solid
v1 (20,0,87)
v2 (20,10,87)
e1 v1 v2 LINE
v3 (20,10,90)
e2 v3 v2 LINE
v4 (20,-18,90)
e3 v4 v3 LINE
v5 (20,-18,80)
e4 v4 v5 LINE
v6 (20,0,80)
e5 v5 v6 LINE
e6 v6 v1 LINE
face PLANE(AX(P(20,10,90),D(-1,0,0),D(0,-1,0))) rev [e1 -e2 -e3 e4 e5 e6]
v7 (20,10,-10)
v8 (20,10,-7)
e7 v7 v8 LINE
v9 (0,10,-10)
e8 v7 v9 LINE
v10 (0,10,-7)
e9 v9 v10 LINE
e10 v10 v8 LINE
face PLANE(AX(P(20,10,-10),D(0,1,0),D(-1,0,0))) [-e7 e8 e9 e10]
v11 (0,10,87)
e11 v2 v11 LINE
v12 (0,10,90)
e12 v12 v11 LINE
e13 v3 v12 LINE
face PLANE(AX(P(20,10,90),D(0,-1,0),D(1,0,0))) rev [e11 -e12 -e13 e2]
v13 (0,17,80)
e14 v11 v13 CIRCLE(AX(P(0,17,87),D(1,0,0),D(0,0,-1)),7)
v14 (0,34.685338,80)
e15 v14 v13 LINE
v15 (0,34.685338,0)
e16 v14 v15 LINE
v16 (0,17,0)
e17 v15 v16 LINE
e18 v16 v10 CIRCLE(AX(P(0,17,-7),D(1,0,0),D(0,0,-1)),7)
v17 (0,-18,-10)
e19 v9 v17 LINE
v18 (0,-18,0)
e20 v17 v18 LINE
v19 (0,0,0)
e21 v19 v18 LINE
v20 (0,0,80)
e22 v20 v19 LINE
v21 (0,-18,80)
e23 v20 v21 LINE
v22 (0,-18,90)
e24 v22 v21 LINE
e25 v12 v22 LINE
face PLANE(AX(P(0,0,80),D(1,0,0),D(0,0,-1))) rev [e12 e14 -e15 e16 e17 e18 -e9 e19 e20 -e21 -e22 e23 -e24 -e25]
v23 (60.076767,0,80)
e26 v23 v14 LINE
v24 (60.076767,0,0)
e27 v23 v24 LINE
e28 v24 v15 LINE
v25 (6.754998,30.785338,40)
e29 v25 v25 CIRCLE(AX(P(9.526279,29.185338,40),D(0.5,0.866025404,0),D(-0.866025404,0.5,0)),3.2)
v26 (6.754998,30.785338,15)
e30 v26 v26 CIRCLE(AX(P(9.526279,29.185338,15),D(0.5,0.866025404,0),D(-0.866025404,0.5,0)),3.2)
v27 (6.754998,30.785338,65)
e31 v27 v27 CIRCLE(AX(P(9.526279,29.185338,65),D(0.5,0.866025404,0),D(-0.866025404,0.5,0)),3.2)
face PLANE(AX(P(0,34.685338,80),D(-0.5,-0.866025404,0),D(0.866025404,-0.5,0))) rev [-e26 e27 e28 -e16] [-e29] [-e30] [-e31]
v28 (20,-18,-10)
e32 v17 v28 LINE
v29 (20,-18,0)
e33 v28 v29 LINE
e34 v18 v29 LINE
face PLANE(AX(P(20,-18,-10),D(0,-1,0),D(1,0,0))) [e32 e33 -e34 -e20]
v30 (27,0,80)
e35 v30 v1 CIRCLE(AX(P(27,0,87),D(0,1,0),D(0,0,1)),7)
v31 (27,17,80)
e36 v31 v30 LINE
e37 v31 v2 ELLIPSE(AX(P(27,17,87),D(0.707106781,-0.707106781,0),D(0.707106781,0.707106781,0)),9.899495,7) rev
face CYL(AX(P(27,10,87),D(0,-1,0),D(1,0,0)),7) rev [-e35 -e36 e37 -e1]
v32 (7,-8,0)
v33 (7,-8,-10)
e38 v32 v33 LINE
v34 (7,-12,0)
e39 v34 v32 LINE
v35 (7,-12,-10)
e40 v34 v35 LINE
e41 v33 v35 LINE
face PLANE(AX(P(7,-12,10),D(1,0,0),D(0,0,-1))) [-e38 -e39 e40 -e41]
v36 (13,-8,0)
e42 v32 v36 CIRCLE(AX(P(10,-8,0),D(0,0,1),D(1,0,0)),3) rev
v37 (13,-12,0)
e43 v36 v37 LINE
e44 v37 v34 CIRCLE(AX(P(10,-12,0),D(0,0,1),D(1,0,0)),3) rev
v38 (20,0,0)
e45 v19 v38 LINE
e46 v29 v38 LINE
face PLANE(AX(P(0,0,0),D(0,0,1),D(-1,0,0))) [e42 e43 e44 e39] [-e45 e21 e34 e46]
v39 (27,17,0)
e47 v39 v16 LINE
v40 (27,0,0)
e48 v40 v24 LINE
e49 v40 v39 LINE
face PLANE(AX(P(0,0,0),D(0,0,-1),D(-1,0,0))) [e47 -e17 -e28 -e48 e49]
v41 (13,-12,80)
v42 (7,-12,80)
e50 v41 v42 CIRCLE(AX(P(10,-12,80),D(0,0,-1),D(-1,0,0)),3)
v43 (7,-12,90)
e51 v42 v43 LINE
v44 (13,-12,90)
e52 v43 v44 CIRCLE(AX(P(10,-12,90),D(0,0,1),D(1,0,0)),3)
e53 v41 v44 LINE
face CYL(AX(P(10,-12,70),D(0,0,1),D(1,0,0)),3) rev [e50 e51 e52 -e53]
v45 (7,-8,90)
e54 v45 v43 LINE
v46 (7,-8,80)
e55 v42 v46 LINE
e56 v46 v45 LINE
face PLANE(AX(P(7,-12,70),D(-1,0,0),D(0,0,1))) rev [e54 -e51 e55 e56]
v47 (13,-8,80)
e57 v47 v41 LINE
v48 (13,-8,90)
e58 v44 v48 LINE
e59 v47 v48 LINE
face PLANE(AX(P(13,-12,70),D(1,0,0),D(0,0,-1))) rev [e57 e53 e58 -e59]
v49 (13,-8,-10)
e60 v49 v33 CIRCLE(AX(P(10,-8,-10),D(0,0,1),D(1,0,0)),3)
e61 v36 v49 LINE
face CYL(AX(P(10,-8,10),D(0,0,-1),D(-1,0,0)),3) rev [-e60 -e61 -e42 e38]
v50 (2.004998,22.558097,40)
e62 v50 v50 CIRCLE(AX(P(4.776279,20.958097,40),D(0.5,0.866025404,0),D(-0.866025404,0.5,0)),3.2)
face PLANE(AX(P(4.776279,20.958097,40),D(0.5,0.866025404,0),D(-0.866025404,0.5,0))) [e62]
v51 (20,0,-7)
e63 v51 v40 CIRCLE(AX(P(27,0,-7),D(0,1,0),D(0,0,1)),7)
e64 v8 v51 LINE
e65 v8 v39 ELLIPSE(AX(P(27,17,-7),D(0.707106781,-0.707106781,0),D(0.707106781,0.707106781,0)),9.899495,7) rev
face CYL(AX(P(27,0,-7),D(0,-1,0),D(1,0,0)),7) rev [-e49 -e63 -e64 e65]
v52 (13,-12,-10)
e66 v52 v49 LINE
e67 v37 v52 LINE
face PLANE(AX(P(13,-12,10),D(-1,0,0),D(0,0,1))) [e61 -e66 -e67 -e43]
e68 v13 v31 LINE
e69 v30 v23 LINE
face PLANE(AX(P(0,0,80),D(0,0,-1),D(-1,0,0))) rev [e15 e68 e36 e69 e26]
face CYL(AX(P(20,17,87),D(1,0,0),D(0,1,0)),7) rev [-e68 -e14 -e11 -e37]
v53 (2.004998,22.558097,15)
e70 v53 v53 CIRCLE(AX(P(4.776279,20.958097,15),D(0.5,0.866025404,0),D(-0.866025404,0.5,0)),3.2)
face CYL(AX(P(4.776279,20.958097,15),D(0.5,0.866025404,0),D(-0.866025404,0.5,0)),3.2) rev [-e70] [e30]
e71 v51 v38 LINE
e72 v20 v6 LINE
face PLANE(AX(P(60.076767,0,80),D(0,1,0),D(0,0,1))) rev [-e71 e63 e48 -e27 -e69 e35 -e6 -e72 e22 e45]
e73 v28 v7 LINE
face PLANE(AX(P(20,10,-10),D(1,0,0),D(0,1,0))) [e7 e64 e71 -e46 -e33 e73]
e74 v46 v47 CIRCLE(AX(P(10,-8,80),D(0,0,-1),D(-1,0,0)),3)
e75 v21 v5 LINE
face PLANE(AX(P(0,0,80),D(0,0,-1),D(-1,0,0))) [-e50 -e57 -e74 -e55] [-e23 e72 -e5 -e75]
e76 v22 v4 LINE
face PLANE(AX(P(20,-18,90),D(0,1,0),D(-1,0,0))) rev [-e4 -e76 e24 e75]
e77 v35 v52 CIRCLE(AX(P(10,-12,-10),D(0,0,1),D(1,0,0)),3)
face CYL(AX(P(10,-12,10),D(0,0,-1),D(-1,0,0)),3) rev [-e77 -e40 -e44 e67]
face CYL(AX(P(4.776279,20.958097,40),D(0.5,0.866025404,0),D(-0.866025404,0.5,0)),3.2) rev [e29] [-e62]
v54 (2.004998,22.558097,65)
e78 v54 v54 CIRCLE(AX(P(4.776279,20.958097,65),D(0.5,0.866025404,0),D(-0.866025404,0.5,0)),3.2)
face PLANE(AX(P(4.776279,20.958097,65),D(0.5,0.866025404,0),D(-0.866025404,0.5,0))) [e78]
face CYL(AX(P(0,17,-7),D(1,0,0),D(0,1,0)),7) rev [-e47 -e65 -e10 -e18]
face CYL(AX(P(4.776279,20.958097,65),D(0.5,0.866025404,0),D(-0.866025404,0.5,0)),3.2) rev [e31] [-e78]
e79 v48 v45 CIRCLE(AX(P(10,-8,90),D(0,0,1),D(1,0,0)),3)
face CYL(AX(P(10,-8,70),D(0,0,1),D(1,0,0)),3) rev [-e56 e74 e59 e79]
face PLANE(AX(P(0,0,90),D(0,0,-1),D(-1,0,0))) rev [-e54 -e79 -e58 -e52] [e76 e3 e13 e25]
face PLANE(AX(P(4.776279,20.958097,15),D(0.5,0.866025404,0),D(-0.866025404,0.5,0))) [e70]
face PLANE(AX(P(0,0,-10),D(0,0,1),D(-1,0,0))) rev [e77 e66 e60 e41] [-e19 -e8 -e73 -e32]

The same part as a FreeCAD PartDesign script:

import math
import FreeCAD as App
import Part
import Sketcher

V = App.Vector
Q = App.Units.Quantity


def edges_at(feature, points):
    """Names of the edges that pass closest to the given points."""
    edges = feature.Shape.Edges
    near = lambda p: min(range(len(edges)), key=lambda i: edges[i].distToShape(Part.Vertex(*p))[0])
    return sorted({f"Edge{near(p) + 1}" for p in points})


def add_polygon(sketch, points):
    """Adds a closed chain of lines whose ends are joined by coincident constraints."""
    first, n = sketch.GeometryCount, len(points)
    for a, b in zip(points, points[1:] + points[:1]):
        sketch.addGeometry(Part.LineSegment(App.Vector(*a, 0), App.Vector(*b, 0)), False)
    for i in range(n):
        sketch.addConstraint(Sketcher.Constraint("Coincident", first + i, 2, first + (i + 1) % n, 1))

doc = App.newDocument("Part")
body = doc.addObject("PartDesign::Body", "Body")

# Sketch on XY plane
sketch1 = body.newObject("Sketcher::SketchObject", "Sketch")
sketch1.AttachmentSupport = (doc.getObject("XY_Plane"), [""])
sketch1.MapMode = "FlatFace"
add_polygon(sketch1, [(0, 34.685338), (0, 0), (60.076767, 0)])  # lines 0-2
sketch1.addConstraint(Sketcher.Constraint("Vertical", 0))
sketch1.addConstraint(Sketcher.Constraint("Horizontal", 1))
sketch1.addConstraint(Sketcher.Constraint("Coincident", 0, 2, -1, 1))
sketch1.addConstraint(Sketcher.Constraint("Angle", 2, Q("150 deg")))
sketch1.addConstraint(Sketcher.Constraint("DistanceX", 1, 1, 1, 2, 60.076767))
pad1 = body.newObject("PartDesign::Pad", "Pad")
pad1.Profile = sketch1
pad1.Length = 80

# Sketch on XY plane
sketch2 = body.newObject("Sketcher::SketchObject", "Sketch001")
sketch2.AttachmentSupport = (doc.getObject("XY_Plane"), [""])
sketch2.MapMode = "FlatFace"
sketch2.AttachmentOffset = App.Placement(V(0, 0, 80), App.Rotation())
add_polygon(sketch2, [(0, 10), (0, -18), (20, -18), (20, 10)])  # lines 0-3
sketch2.addConstraint(Sketcher.Constraint("Vertical", 0))
sketch2.addConstraint(Sketcher.Constraint("Horizontal", 1))
sketch2.addConstraint(Sketcher.Constraint("Vertical", 2))
sketch2.addConstraint(Sketcher.Constraint("Horizontal", 3))
sketch2.addConstraint(Sketcher.Constraint("PointOnObject", 0, 2, -2))
sketch2.addConstraint(Sketcher.Constraint("DistanceX", 1, 1, 1, 2, 20.0))
sketch2.addConstraint(Sketcher.Constraint("DistanceY", 0, 2, 0, 1, 28.0))
sketch2.addConstraint(Sketcher.Constraint("DistanceY", 0, 2, -1, 1, 18.0))
pad2 = body.newObject("PartDesign::Pad", "Pad001")
pad2.Profile = sketch2
pad2.Length = 10
doc.recompute()

fillet = body.newObject("PartDesign::Fillet", "Fillet")
fillet.Base = (pad2, edges_at(pad2, [(20, 5, 80), (10, 10, 80)]))
fillet.Radius = 7

# Sketch on XY plane
sketch3 = body.newObject("Sketcher::SketchObject", "Sketch002")
sketch3.AttachmentSupport = (doc.getObject("XY_Plane"), [""])
sketch3.MapMode = "FlatFace"
sketch3.AttachmentOffset = App.Placement(V(0, 0, 90), App.Rotation())
sketch3.addGeometry(Part.LineSegment(V(7, -8, 0), V(7, -12, 0)), False)
sketch3.addGeometry(Part.ArcOfCircle(Part.Circle(V(10, -12, 0), V(0, 0, 1), 3), math.radians(180), math.radians(360)), False)
sketch3.addGeometry(Part.LineSegment(V(13, -12, 0), V(13, -8, 0)), False)
sketch3.addGeometry(Part.ArcOfCircle(Part.Circle(V(10, -8, 0), V(0, 0, 1), 3), math.radians(0), math.radians(180)), False)
sketch3.addConstraint(Sketcher.Constraint("Tangent", 0, 2, 1, 1))
sketch3.addConstraint(Sketcher.Constraint("Tangent", 1, 2, 2, 1))
sketch3.addConstraint(Sketcher.Constraint("Tangent", 2, 2, 3, 1))
sketch3.addConstraint(Sketcher.Constraint("Tangent", 3, 2, 0, 1))
sketch3.addConstraint(Sketcher.Constraint("Vertical", 0))
sketch3.addConstraint(Sketcher.Constraint("Vertical", 2))
sketch3.addConstraint(Sketcher.Constraint("Radius", 1, 3.0))
sketch3.addConstraint(Sketcher.Constraint("DistanceY", 0, 2, 0, 1, 4.0))
sketch3.addConstraint(Sketcher.Constraint("DistanceX", -1, 1, 1, 3, 10.0))
sketch3.addConstraint(Sketcher.Constraint("DistanceY", 1, 3, -1, 1, 12.0))
pocket1 = body.newObject("PartDesign::Pocket", "Pocket")
pocket1.Profile = sketch3
pocket1.Length = 20
doc.recompute()

datumplane = body.newObject("PartDesign::Plane", "DatumPlane")
datumplane.AttachmentSupport = (doc.getObject("XY_Plane"), [""])
datumplane.MapMode = "FlatFace"
datumplane.AttachmentOffset = App.Placement(V(0, 0, 40), App.Rotation())
mirrored = body.newObject("PartDesign::Mirrored", "Mirrored")
mirrored.Originals = [pad2, pocket1]
mirrored.MirrorPlane = (datumplane, [""])
body.Tip = mirrored
doc.recompute()

fillet2 = body.newObject("PartDesign::Fillet", "Fillet001")
fillet2.Base = (mirrored, edges_at(mirrored, [(20, 5, 0), (10, 10, 0)]))
fillet2.Radius = 7

# Sketch on an angled plane
sketch4 = body.newObject("Sketcher::SketchObject", "Sketch003")
sketch4.Placement = App.Placement(V(15.019192, 26.014003, 0), App.Rotation(V(0.866025404, -0.5, 0), V(0, 0, -1), V(0.5, 0.866025404, 0), "ZXY"))
sketch4.addGeometry(Part.Circle(V(-6.342669, -15, 0), V(0, 0, 1), 3.2), False)
sketch4.addGeometry(Part.Circle(V(-6.342669, -40, 0), V(0, 0, 1), 3.2), False)
sketch4.addGeometry(Part.Circle(V(-6.342669, -65, 0), V(0, 0, 1), 3.2), False)
sketch4.addConstraint(Sketcher.Constraint("Equal", 0, 1))
sketch4.addConstraint(Sketcher.Constraint("Equal", 1, 2))
sketch4.addConstraint(Sketcher.Constraint("Vertical", 0, 3, 1, 3))
sketch4.addConstraint(Sketcher.Constraint("Vertical", 1, 3, 2, 3))
sketch4.addConstraint(Sketcher.Constraint("Diameter", 0, 6.4))
sketch4.addConstraint(Sketcher.Constraint("DistanceY", 0, 3, -1, 1, 15.0))
sketch4.addConstraint(Sketcher.Constraint("DistanceY", 1, 3, -1, 1, 40.0))
sketch4.addConstraint(Sketcher.Constraint("DistanceY", 2, 3, -1, 1, 65.0))
sketch4.addConstraint(Sketcher.Constraint("DistanceX", 0, 3, -1, 1, 6.342669))
pocket2 = body.newObject("PartDesign::Pocket", "Pocket001")
pocket2.Profile = sketch4
pocket2.Length = 9.5

doc.recompute()
